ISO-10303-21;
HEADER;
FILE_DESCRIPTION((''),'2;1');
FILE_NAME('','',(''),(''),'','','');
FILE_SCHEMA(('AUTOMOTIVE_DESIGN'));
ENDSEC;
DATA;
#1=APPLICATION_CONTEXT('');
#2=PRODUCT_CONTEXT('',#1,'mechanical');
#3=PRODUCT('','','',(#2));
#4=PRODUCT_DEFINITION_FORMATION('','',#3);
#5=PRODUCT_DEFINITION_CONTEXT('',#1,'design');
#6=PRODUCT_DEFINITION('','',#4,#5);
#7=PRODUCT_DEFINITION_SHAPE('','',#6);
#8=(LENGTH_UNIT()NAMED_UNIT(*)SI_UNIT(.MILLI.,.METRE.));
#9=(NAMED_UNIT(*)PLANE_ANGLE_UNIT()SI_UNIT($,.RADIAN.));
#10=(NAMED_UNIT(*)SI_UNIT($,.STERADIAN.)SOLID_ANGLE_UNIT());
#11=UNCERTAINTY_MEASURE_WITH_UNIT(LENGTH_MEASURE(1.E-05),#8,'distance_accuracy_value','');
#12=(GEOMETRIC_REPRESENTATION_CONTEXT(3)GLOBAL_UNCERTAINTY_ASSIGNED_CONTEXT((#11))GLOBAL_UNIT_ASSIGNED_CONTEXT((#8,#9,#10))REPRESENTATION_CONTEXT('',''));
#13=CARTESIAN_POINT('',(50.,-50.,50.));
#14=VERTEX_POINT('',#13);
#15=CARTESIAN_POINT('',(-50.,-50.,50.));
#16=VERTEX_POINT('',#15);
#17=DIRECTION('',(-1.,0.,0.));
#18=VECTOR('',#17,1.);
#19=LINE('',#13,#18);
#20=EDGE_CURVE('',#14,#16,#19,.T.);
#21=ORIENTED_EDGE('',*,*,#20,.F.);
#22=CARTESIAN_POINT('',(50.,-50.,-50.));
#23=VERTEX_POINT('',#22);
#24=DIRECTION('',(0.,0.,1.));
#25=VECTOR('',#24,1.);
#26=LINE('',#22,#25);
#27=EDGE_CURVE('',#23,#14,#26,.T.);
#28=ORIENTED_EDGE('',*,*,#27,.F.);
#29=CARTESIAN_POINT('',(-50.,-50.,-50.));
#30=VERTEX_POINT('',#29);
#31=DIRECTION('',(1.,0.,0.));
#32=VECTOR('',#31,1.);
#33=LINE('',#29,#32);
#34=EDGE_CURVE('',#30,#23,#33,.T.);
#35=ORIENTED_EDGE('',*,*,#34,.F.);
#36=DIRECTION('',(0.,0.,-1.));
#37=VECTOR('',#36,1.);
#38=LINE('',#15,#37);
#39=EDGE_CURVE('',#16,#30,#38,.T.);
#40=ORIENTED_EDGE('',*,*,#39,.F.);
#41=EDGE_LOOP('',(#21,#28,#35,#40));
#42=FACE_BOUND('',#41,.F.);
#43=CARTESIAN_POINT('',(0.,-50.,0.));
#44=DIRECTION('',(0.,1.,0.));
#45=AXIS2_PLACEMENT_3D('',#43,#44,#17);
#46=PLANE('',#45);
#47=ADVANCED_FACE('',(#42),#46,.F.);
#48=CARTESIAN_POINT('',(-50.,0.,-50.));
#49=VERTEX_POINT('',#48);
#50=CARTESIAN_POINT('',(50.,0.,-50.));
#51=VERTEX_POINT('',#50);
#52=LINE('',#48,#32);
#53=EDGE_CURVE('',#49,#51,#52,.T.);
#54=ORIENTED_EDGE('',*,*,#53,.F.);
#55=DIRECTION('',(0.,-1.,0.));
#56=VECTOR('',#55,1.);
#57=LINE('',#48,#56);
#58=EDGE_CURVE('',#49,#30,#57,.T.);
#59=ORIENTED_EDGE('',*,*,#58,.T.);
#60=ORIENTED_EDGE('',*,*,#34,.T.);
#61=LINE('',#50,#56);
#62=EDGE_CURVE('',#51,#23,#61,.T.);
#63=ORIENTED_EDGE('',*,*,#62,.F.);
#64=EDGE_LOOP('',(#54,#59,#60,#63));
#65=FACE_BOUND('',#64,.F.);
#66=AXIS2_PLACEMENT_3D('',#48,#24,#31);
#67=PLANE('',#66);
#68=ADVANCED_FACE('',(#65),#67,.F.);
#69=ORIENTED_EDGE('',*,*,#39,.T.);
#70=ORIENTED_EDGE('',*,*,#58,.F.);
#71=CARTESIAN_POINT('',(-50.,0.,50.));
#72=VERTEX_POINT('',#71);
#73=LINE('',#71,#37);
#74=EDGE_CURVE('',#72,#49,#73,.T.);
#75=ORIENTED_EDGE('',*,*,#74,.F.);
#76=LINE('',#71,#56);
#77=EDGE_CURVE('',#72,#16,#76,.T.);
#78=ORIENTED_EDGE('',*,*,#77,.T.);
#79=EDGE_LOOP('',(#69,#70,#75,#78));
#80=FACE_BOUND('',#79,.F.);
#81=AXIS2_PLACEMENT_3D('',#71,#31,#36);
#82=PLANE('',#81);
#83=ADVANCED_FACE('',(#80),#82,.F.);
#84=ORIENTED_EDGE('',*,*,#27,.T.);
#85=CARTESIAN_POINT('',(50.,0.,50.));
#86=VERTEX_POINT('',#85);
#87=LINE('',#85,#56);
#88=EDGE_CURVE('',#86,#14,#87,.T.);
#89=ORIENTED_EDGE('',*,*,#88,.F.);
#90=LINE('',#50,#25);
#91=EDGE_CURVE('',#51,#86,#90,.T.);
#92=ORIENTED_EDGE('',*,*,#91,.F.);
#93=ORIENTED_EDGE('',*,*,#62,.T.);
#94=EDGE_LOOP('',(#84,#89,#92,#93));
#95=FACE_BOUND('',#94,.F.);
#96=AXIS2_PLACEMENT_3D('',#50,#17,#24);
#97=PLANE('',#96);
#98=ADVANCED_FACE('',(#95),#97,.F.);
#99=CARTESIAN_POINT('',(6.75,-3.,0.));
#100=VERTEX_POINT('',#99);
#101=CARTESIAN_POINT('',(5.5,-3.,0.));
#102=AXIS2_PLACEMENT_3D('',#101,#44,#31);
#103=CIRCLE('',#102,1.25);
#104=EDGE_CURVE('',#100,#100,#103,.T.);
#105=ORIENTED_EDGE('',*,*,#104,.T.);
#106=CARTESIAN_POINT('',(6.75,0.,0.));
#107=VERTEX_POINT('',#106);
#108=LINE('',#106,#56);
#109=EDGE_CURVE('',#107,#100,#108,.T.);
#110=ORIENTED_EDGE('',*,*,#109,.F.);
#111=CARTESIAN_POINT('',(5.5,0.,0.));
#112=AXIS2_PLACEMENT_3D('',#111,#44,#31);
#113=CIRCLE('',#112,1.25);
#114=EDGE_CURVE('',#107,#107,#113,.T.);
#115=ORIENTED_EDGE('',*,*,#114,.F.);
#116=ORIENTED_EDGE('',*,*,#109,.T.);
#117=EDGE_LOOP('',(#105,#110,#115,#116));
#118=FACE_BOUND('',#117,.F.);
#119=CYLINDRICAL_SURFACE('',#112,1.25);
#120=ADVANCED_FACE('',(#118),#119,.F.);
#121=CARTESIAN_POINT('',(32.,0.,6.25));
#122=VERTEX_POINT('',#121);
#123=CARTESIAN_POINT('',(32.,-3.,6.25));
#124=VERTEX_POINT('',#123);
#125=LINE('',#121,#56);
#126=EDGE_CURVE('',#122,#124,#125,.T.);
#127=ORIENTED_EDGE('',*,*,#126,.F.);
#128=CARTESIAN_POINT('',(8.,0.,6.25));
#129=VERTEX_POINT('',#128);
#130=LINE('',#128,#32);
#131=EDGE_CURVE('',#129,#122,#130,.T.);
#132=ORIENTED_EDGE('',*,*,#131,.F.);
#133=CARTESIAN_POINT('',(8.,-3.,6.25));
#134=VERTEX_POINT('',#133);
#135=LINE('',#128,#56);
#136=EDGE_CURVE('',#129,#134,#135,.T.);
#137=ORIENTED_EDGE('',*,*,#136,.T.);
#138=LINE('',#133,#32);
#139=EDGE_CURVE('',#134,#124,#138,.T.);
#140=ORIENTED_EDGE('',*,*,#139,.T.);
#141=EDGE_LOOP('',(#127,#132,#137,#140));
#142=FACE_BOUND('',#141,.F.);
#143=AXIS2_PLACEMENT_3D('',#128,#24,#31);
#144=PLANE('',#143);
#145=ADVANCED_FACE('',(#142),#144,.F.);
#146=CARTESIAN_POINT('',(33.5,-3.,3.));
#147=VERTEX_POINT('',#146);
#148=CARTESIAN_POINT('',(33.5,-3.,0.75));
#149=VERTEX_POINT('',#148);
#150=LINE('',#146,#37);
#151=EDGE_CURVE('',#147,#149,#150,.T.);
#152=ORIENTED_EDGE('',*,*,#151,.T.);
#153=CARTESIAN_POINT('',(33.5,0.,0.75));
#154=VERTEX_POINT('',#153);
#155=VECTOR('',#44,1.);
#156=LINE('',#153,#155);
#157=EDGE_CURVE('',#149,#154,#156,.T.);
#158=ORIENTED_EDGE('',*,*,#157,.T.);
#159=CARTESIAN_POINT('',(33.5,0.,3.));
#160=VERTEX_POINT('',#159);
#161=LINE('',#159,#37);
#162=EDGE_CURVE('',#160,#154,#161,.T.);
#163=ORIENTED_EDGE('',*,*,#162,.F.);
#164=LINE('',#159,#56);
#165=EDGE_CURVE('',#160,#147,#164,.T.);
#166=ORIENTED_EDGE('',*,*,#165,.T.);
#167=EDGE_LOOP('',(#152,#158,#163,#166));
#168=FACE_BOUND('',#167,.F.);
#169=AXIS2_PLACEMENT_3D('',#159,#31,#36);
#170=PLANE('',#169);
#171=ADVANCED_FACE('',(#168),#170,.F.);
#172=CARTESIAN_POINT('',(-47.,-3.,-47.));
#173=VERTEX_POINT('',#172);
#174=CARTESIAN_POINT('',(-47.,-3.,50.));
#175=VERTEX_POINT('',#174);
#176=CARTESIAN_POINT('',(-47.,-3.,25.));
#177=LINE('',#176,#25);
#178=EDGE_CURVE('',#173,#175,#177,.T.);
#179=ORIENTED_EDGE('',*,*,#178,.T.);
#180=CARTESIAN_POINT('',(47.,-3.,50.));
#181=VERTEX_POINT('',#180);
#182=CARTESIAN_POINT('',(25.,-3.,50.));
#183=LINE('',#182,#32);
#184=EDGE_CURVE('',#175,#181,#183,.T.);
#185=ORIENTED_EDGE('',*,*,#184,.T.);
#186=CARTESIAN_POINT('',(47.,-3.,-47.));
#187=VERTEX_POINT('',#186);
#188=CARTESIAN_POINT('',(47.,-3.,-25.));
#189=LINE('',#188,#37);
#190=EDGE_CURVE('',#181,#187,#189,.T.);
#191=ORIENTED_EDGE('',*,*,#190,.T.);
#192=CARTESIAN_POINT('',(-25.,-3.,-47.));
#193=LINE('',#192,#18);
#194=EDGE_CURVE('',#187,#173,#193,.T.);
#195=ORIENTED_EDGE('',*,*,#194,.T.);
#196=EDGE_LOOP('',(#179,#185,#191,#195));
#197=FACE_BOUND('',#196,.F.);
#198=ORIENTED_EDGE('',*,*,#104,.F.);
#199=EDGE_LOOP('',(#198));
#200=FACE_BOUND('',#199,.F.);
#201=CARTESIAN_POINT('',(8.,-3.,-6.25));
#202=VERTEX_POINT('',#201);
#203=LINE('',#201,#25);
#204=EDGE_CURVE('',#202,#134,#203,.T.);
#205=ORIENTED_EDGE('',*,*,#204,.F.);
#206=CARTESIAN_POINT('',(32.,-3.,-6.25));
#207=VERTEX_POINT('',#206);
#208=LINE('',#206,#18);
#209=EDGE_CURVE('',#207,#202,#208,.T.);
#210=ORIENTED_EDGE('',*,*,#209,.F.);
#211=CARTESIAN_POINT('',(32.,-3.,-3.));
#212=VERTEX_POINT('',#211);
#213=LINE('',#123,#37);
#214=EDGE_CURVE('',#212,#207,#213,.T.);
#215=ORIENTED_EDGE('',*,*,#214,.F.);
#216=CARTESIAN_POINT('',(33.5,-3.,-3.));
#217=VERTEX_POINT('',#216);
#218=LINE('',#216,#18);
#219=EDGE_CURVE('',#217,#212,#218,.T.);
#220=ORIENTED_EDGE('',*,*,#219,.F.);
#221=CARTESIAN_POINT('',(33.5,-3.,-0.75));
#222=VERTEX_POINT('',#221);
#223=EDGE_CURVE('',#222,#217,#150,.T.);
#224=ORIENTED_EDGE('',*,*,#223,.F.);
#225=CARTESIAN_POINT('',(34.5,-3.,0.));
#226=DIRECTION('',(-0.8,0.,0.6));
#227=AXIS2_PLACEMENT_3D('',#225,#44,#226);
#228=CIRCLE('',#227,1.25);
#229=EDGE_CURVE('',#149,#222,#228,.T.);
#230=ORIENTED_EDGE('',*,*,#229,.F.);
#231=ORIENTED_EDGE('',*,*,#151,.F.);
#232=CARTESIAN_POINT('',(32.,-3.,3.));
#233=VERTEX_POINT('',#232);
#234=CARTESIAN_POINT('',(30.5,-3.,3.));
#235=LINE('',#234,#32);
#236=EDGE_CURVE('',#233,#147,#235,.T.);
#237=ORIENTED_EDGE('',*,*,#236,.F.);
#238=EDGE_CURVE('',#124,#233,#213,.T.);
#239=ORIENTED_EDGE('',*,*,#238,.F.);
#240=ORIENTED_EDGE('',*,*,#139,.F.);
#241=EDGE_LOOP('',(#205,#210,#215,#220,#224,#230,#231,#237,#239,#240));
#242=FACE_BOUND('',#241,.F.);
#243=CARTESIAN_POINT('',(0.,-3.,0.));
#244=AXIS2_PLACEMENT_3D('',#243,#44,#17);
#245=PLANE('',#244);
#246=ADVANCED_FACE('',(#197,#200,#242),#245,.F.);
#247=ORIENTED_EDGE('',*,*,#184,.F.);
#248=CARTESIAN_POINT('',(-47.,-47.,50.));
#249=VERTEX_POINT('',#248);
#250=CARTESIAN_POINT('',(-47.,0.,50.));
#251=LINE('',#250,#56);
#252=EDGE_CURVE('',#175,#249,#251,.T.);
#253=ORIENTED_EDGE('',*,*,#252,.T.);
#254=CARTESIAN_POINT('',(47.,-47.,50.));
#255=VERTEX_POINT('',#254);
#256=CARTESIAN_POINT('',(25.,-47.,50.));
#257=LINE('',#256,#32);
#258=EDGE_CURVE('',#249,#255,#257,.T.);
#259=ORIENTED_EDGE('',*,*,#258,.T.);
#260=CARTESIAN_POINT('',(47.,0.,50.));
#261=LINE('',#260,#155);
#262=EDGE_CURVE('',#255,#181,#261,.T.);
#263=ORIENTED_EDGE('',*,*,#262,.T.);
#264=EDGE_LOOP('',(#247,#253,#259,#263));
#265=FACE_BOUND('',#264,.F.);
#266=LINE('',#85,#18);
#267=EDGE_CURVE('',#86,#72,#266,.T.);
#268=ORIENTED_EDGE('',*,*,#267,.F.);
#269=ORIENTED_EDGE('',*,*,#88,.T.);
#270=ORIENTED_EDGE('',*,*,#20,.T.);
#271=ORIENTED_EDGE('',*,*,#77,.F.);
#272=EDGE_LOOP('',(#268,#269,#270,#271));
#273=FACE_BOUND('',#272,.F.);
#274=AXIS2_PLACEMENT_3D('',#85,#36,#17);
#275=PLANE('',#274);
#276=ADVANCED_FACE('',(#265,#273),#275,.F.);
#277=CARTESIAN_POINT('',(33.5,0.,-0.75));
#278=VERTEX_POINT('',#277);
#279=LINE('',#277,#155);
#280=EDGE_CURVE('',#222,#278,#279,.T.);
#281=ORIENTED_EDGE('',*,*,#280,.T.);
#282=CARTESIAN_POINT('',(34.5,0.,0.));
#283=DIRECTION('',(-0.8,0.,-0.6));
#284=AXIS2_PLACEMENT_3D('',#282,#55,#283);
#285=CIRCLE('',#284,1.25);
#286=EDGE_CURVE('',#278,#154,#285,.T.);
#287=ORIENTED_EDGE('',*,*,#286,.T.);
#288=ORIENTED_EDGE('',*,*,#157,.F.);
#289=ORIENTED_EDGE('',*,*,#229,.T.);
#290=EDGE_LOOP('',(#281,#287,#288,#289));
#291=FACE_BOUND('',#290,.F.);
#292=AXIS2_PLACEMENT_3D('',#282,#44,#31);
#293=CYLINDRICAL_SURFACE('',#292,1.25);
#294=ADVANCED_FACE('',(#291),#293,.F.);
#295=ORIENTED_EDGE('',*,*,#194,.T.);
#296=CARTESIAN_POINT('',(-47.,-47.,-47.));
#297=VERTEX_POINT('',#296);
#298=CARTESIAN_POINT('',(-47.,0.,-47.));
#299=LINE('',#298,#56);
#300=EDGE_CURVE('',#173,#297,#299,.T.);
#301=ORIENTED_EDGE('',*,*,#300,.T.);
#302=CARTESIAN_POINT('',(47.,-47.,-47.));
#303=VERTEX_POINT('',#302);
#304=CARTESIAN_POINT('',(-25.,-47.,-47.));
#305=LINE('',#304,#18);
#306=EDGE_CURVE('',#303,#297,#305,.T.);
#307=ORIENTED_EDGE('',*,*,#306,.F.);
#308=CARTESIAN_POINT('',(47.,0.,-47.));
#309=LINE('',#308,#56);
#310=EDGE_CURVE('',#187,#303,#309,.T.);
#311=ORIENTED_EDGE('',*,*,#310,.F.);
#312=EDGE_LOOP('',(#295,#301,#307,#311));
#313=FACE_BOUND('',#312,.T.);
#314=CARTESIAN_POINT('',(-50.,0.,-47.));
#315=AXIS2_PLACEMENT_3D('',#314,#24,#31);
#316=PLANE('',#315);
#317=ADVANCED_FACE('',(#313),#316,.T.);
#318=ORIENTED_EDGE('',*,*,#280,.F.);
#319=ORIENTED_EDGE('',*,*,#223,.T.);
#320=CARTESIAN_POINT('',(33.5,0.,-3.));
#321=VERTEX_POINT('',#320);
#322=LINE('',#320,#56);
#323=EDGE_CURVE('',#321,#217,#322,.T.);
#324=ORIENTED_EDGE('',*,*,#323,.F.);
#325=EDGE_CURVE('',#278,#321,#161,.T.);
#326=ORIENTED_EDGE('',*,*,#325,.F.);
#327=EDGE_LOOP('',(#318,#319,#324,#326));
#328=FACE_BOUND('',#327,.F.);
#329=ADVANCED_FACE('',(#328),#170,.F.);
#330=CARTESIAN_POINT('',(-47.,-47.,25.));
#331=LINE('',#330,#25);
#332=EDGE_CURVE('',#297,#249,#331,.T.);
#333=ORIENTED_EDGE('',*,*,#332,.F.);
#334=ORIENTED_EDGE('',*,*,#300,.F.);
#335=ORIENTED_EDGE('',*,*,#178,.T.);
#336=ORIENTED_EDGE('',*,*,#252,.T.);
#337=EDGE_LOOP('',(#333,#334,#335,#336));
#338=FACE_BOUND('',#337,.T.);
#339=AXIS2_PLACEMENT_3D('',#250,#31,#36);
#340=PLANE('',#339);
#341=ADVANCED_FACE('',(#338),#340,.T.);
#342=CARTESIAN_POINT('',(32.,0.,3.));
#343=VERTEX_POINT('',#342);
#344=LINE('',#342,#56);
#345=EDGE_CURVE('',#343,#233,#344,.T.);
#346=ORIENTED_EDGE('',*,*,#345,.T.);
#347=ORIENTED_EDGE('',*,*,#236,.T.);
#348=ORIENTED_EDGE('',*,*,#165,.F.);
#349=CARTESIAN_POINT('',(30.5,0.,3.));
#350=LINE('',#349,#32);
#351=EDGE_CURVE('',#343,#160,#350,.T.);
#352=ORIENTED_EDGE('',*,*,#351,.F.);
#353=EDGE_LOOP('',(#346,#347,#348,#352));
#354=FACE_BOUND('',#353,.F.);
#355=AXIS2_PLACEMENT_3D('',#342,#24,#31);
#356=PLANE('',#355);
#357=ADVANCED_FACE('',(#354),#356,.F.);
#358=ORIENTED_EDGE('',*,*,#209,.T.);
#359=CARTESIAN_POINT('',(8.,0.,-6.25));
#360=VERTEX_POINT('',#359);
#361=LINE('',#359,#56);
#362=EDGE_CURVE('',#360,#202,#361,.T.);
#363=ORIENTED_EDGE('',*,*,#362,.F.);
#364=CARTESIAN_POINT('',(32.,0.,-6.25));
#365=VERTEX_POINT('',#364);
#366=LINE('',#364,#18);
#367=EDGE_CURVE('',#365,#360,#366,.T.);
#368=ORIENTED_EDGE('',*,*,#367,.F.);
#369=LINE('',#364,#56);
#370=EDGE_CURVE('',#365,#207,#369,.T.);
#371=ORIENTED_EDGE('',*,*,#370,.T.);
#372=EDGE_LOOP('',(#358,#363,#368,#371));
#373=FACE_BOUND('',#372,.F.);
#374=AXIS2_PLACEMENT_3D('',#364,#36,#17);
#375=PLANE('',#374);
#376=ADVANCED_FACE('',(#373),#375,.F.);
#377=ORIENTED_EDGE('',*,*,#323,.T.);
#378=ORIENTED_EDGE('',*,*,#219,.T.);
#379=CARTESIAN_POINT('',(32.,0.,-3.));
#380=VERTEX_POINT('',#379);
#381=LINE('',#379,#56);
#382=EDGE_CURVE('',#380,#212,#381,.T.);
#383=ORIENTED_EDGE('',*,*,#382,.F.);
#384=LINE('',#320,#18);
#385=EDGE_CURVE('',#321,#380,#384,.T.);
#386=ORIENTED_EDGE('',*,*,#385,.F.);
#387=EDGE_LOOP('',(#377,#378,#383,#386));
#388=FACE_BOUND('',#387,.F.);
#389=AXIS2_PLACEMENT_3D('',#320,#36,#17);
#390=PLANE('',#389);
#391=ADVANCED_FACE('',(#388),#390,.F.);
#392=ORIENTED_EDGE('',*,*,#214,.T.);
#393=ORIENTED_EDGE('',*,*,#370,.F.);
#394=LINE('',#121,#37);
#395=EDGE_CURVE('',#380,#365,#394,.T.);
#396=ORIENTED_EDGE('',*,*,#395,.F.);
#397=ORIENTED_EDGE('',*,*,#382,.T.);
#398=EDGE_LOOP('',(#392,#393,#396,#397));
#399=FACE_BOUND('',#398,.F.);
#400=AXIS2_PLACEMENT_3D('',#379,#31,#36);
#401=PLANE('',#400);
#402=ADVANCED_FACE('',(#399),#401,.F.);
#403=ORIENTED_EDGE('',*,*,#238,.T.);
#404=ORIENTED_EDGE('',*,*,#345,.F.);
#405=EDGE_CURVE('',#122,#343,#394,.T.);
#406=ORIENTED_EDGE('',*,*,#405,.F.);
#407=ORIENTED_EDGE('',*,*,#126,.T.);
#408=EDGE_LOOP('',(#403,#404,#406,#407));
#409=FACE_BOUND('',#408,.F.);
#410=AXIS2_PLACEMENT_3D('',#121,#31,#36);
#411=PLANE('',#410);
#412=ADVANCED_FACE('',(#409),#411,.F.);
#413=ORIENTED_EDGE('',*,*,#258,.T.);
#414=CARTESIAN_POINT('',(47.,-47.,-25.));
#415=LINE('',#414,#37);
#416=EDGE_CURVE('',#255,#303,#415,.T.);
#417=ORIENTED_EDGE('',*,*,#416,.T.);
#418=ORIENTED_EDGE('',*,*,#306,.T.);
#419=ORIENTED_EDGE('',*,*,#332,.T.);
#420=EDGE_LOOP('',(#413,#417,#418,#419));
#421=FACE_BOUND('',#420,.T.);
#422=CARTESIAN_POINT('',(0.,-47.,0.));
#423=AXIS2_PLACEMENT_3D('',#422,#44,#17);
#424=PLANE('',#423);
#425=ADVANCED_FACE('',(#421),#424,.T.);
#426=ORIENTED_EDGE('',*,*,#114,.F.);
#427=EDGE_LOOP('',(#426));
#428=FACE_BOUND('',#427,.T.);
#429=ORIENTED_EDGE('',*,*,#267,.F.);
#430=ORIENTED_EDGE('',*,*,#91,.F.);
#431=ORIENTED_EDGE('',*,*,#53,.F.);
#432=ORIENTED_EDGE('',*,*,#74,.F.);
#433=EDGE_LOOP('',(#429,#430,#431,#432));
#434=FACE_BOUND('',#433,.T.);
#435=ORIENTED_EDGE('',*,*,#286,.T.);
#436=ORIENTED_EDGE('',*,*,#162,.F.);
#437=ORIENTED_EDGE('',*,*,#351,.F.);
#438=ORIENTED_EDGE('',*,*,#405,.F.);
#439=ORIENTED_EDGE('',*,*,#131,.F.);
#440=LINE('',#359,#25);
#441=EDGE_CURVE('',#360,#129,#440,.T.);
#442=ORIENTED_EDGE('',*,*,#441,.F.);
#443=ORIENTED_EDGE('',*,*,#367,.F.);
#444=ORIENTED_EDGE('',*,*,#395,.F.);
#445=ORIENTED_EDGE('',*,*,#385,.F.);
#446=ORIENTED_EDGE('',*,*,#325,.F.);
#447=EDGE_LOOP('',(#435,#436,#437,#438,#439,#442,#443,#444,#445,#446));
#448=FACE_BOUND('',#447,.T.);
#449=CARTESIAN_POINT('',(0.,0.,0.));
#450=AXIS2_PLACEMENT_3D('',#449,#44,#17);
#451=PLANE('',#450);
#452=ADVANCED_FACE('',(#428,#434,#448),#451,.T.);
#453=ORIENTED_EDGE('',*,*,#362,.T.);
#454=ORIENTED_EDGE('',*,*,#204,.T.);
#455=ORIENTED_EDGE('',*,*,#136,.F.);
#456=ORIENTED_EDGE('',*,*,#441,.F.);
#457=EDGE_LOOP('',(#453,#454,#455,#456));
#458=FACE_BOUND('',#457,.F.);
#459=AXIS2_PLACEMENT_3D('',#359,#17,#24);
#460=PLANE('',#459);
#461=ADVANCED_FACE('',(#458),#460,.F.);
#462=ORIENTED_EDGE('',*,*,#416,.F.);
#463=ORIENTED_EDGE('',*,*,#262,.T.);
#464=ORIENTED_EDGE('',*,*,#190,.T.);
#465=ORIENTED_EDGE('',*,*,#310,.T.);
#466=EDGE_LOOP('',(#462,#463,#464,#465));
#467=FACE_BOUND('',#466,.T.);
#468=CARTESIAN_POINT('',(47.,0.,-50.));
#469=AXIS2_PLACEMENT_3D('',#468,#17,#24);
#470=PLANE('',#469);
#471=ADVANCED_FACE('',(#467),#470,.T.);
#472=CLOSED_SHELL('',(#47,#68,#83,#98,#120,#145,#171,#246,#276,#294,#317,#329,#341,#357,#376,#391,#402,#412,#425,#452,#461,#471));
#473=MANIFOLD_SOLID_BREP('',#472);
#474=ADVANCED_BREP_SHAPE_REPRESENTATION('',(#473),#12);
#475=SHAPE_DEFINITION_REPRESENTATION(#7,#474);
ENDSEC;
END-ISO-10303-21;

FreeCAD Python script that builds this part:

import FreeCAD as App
import Part
import Sketcher
from FreeCAD import Vector
Q = App.Units.Quantity


def faces_at(feature, points):
    """Names of the faces that lie closest to the given points."""
    faces = feature.Shape.Faces
    near = lambda p: min(range(len(faces)), key=lambda i: faces[i].distToShape(Part.Vertex(*p))[0])
    return sorted({f"Face{near(p) + 1}" for p in points})


def add_polygon(sketch, points):
    """Adds a closed chain of lines whose ends are joined by coincident constraints."""
    first, n = sketch.GeometryCount, len(points)
    for a, b in zip(points, points[1:] + points[:1]):
        sketch.addGeometry(Part.LineSegment(App.Vector(*a, 0), App.Vector(*b, 0)), False)
    for i in range(n):
        sketch.addConstraint(Sketcher.Constraint("Coincident", first + i, 2, first + (i + 1) % n, 1))

doc = App.newDocument("Part")
body = doc.addObject("PartDesign::Body", "Body")

sketch1 = doc.addObject("Sketcher::SketchObject", "Sketch")
body.addObject(sketch1)
sketch1.AttachmentSupport = (doc.XZ_Plane, [""])
sketch1.MapMode = "FlatFace"
add_polygon(sketch1, [(-50, 50), (50, 50), (50, -50), (-50, -50)])
sketch1.addConstraint(Sketcher.Constraint("Horizontal", 0))
sketch1.addConstraint(Sketcher.Constraint("Vertical", 1))
sketch1.addConstraint(Sketcher.Constraint("Horizontal", 2))
sketch1.addConstraint(Sketcher.Constraint("Vertical", 3))
sketch1.addConstraint(Sketcher.Constraint("Symmetric", 0, 2, 2, 2, -1, 1))
sketch1.addConstraint(Sketcher.Constraint("Equal", 2, 1))
sketch1.addConstraint(Sketcher.Constraint("DistanceX", 0, 1, 0, 2, Q("100 mm")))
pad1 = doc.addObject("PartDesign::Pad", "Pad")
body.addObject(pad1)
pad1.Profile = sketch1
pad1.Length = 50
doc.recompute()

thickness = doc.addObject("PartDesign::Thickness", "Thickness")
body.addObject(thickness)
thickness.Base = (pad1, faces_at(pad1, [(-16.667, -16.667, 50)]))
thickness.Value = 3
thickness.Reversed = True
thickness.Join = "Intersection"

sketch2 = doc.addObject("Sketcher::SketchObject", "Sketch001")
body.addObject(sketch2)
sketch2.AttachmentSupport = (doc.XZ_Plane, [""])
sketch2.MapMode = "FlatFace"
sketch2.addGeometry(Part.Circle(Vector(5.5, 0, 0), Vector(0, 0, 1), 1.2), False)
sketch2.addGeometry(Part.Circle(Vector(34.5, 0, 0), Vector(0, 0, 1), 1.2), False)
sketch2.addConstraint(Sketcher.Constraint("Equal", 0, 1))
sketch2.addConstraint(Sketcher.Constraint("PointOnObject", 0, 3, -1))
sketch2.addConstraint(Sketcher.Constraint("PointOnObject", 1, 3, -1))
sketch2.addConstraint(Sketcher.Constraint("Diameter", 0, Q("2.5 mm")))
sketch2.addConstraint(Sketcher.Constraint("DistanceX", 0, 3, 1, 3, Q("29 mm")))
sketch2.addConstraint(Sketcher.Constraint("DistanceX", -1, 1, 0, 3, Q("5.5 mm")))
pocket1 = doc.addObject("PartDesign::Pocket", "Pocket")
body.addObject(pocket1)
pocket1.Profile = sketch2
pocket1.Length = 3
pocket1.Reversed = True

sketch3 = doc.addObject("Sketcher::SketchObject", "Sketch002")
body.addObject(sketch3)
sketch3.AttachmentSupport = (doc.XZ_Plane, [""])
sketch3.MapMode = "FlatFace"
add_polygon(sketch3, [(8, -6.2), (8, 6.2), (32, 6.2), (32, 3), (33.5, 3), (33.5, -3), (32, -3), (32, -6.2)])
sketch3.addConstraint(Sketcher.Constraint("Vertical", 0))
sketch3.addConstraint(Sketcher.Constraint("Horizontal", 1))
sketch3.addConstraint(Sketcher.Constraint("Vertical", 2))
sketch3.addConstraint(Sketcher.Constraint("Horizontal", 3))
sketch3.addConstraint(Sketcher.Constraint("Vertical", 4))
sketch3.addConstraint(Sketcher.Constraint("Horizontal", 5))
sketch3.addConstraint(Sketcher.Constraint("Vertical", 6))
sketch3.addConstraint(Sketcher.Constraint("Horizontal", 7))
sketch3.addConstraint(Sketcher.Constraint("Symmetric", 2, 2, 5, 2, -1))
sketch3.addConstraint(Sketcher.Constraint("Equal", 2, 6))
sketch3.addConstraint(Sketcher.Constraint("DistanceX", 1, 1, 1, 2, Q("24 mm")))
sketch3.addConstraint(Sketcher.Constraint("DistanceY", 4, 2, 4, 1, Q("6 mm")))
sketch3.addConstraint(Sketcher.Constraint("DistanceY", 0, 1, 0, 2, Q("12.5 mm")))
sketch3.addConstraint(Sketcher.Constraint("DistanceX", 3, 1, 3, 2, Q("1.5 mm")))
sketch3.addConstraint(Sketcher.Constraint("DistanceX", -1, 1, 0, 2, Q("8 mm")))
pocket2 = doc.addObject("PartDesign::Pocket", "Pocket001")
body.addObject(pocket2)
pocket2.Profile = sketch3
pocket2.Length = 3
pocket2.Reversed = True

doc.recompute()
